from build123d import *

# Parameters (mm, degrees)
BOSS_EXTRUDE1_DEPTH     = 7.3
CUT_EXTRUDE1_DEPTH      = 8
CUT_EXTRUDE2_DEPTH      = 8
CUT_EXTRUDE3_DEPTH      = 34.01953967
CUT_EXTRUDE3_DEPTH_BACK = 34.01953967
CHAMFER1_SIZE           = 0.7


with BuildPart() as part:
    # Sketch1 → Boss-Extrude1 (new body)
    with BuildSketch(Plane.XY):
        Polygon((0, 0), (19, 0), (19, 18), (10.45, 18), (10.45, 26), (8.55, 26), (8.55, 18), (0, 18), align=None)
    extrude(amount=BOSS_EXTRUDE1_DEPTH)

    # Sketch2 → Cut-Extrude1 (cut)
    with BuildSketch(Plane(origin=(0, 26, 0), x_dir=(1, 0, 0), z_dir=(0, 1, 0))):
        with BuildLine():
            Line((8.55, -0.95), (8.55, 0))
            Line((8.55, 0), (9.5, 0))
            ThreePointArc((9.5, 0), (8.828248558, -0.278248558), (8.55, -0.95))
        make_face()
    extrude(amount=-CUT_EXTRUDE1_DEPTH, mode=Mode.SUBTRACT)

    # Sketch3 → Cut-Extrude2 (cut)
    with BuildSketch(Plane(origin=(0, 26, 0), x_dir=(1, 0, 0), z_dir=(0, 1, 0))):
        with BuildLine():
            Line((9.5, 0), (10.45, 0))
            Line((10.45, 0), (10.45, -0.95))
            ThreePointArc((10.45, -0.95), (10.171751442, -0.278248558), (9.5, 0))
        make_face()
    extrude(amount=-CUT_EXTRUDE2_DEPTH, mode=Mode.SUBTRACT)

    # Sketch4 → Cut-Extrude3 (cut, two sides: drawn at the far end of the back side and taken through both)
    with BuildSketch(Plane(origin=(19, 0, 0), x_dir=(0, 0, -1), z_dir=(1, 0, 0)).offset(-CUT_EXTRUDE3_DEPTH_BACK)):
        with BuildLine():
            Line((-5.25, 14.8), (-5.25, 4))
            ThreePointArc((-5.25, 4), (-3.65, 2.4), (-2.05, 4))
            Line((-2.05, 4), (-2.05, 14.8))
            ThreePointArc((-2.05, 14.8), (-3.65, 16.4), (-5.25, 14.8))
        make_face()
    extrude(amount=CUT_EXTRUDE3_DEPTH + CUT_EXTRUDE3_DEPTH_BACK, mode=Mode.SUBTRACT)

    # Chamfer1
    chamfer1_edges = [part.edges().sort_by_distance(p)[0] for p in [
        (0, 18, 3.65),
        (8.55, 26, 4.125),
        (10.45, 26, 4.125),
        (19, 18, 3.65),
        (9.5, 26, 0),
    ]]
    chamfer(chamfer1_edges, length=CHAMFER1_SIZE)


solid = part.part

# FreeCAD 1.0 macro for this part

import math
import FreeCAD as App
import Part
import Sketcher
from FreeCAD import Vector
Q = App.Units.Quantity


def edges_at(feature, points):
    """Names of the edges that pass closest to the given points."""
    edges = feature.Shape.Edges
    near = lambda p: min(range(len(edges)), key=lambda i: edges[i].distToShape(Part.Vertex(*p))[0])
    return sorted({f"Edge{near(p) + 1}" for p in points})

doc = App.newDocument("Part")
params = doc.addObject("Spreadsheet::Sheet", "Params")
for row, (alias, value) in enumerate([
    ("sketch1_width", "19 mm"),
    ("sketch1_height", "18 mm"),
    ("sketch1_height2", "8 mm"),
    ("sketch1_width2", "1.9 mm"),
    ("pad1_length", "7.3 mm"),
    ("sketch2_radius", "0.95 mm"),
    ("pocket1_length", "8 mm"),
    ("sketch3_radius", "0.95 mm"),
    ("pocket2_length", "8 mm"),
    ("sketch4_radius", "1.6 mm"),
    ("sketch4_width", "10.8 mm"),
    ("chamfer_size", "0.7 mm"),
], start=1):
    params.set(f"A{row}", alias)
    params.set(f"B{row}", "=" + value)
    params.setAlias(f"B{row}", alias)

body = doc.addObject("PartDesign::Body", "Body")

# Sketch on XY plane
sketch1 = body.newObject("Sketcher::SketchObject", "Sketch")
sketch1.AttachmentSupport = (doc.getObject("XY_Plane"), [""])
sketch1.MapMode = "FlatFace"
sketch1.addGeometry([
    Part.LineSegment(Vector(0, 0, 0), Vector(19, 0, 0)),  # 0
    Part.LineSegment(Vector(19, 0, 0), Vector(19, 18, 0)),  # 1
    Part.LineSegment(Vector(19, 18, 0), Vector(10.4, 18, 0)),  # 2
    Part.LineSegment(Vector(10.4, 18, 0), Vector(10.4, 26, 0)),  # 3
    Part.LineSegment(Vector(10.4, 26, 0), Vector(8.6, 26, 0)),  # 4
    Part.LineSegment(Vector(8.6, 26, 0), Vector(8.6, 18, 0)),  # 5
    Part.LineSegment(Vector(8.6, 18, 0), Vector(0, 18, 0)),  # 6
    Part.LineSegment(Vector(0, 18, 0), Vector(0, 0, 0)),  # 7
], False)
sketch1.addConstraint([
    Sketcher.Constraint("Coincident", 0, 2, 1, 1),
    Sketcher.Constraint("Coincident", 1, 2, 2, 1),
    Sketcher.Constraint("Coincident", 2, 2, 3, 1),
    Sketcher.Constraint("Coincident", 3, 2, 4, 1),
    Sketcher.Constraint("Coincident", 4, 2, 5, 1),
    Sketcher.Constraint("Coincident", 5, 2, 6, 1),
    Sketcher.Constraint("Coincident", 6, 2, 7, 1),
    Sketcher.Constraint("Coincident", 7, 2, 0, 1),
    Sketcher.Constraint("Horizontal", 0),
    Sketcher.Constraint("Vertical", 1),
    Sketcher.Constraint("Horizontal", 2),
    Sketcher.Constraint("Vertical", 3),
    Sketcher.Constraint("Horizontal", 4),
    Sketcher.Constraint("Vertical", 5),
    Sketcher.Constraint("Horizontal", 6),
    Sketcher.Constraint("Vertical", 7),
    Sketcher.Constraint("Coincident", 7, 2, -1, 1),
    Sketcher.Constraint("Horizontal", 2, 2, 5, 2),
    Sketcher.Constraint("Equal", 2, 6),
    Sketcher.Constraint("DistanceX", 0, 1, 0, 2, Q("19 mm")),
    Sketcher.Constraint("DistanceY", 1, 1, 1, 2, Q("18 mm")),
    Sketcher.Constraint("DistanceY", 3, 1, 3, 2, Q("8 mm")),
    Sketcher.Constraint("DistanceX", 4, 2, 4, 1, Q("1.9 mm")),
])
sketch1.setExpression("Constraints[19]", "Params.sketch1_width")
sketch1.setExpression("Constraints[20]", "Params.sketch1_height")
sketch1.setExpression("Constraints[21]", "Params.sketch1_height2")
sketch1.setExpression("Constraints[22]", "Params.sketch1_width2")
pad1 = body.newObject("PartDesign::Pad", "Pad")
pad1.Profile = sketch1
pad1.setExpression("Length", "Params.pad1_length")

# Sketch on XZ plane
sketch2 = body.newObject("Sketcher::SketchObject", "Sketch001")
sketch2.AttachmentSupport = (doc.getObject("XZ_Plane"), [""])
sketch2.MapMode = "FlatFace"
sketch2.AttachmentOffset = App.Placement(Vector(0, 0, -26), App.Rotation())
sketch2.addGeometry([
    Part.LineSegment(Vector(8.6, 0, 0), Vector(8.6, 0.9, 0)),
    Part.ArcOfCircle(Part.Circle(Vector(9.5, 0.9, 0), Vector(0, 0, 1), 0.9), math.radians(180), math.radians(270)),
    Part.LineSegment(Vector(9.5, 0, 0), Vector(8.6, 0, 0)),
], False)
sketch2.addConstraint([
    Sketcher.Constraint("Tangent", 0, 2, 1, 1),
    Sketcher.Constraint("Tangent", 1, 2, 2, 1),
    Sketcher.Constraint("Coincident", 2, 2, 0, 1),
    Sketcher.Constraint("Vertical", 0),
    Sketcher.Constraint("Horizontal", 2),
    Sketcher.Constraint("PointOnObject", 1, 2, -1),
    Sketcher.Constraint("Radius", 1, Q("0.95 mm")),
    Sketcher.Constraint("DistanceX", -1, 1, 1, 3, Q("9.5 mm")),
])
sketch2.setExpression("Constraints[6]", "Params.sketch2_radius")
pocket1 = body.newObject("PartDesign::Pocket", "Pocket")
pocket1.Profile = sketch2
pocket1.setExpression("Length", "Params.pocket1_length")
pocket1.Reversed = True

# Sketch on XZ plane
sketch3 = body.newObject("Sketcher::SketchObject", "Sketch002")
sketch3.AttachmentSupport = (doc.getObject("XZ_Plane"), [""])
sketch3.MapMode = "FlatFace"
sketch3.AttachmentOffset = App.Placement(Vector(0, 0, -26), App.Rotation())
sketch3.addGeometry([
    Part.LineSegment(Vector(10.4, 0, 0), Vector(9.5, 0, 0)),
    Part.ArcOfCircle(Part.Circle(Vector(9.5, 0.9, 0), Vector(0, 0, 1), 0.9), math.radians(-90), math.radians(0)),
    Part.LineSegment(Vector(10.4, 0.9, 0), Vector(10.4, 0, 0)),
], False)
sketch3.addConstraint([
    Sketcher.Constraint("Tangent", 0, 2, 1, 1),
    Sketcher.Constraint("Tangent", 1, 2, 2, 1),
    Sketcher.Constraint("Coincident", 2, 2, 0, 1),
    Sketcher.Constraint("Horizontal", 0),
    Sketcher.Constraint("Vertical", 2),
    Sketcher.Constraint("PointOnObject", 0, 2, -1),
    Sketcher.Constraint("Radius", 1, Q("0.95 mm")),
    Sketcher.Constraint("DistanceX", -1, 1, 1, 3, Q("9.5 mm")),
])
sketch3.setExpression("Constraints[6]", "Params.sketch3_radius")
pocket2 = body.newObject("PartDesign::Pocket", "Pocket001")
pocket2.Profile = sketch3
pocket2.setExpression("Length", "Params.pocket2_length")
pocket2.Reversed = True

# Sketch on YZ plane
sketch4 = body.newObject("Sketcher::SketchObject", "Sketch003")
sketch4.AttachmentSupport = (doc.getObject("YZ_Plane"), [""])
sketch4.MapMode = "FlatFace"
sketch4.AttachmentOffset = App.Placement(Vector(0, 0, 19), App.Rotation())
sketch4.addGeometry([
    Part.LineSegment(Vector(14.8, 5.2, 0), Vector(4, 5.2, 0)),
    Part.ArcOfCircle(Part.Circle(Vector(4, 3.6, 0), Vector(0, 0, 1), 1.6), math.radians(90), math.radians(270)),
    Part.LineSegment(Vector(4, 2, 0), Vector(14.8, 2, 0)),
    Part.ArcOfCircle(Part.Circle(Vector(14.8, 3.6, 0), Vector(0, 0, 1), 1.6), math.radians(-90), math.radians(90)),
], False)
sketch4.addConstraint([
    Sketcher.Constraint("Tangent", 0, 2, 1, 1),
    Sketcher.Constraint("Tangent", 1, 2, 2, 1),
    Sketcher.Constraint("Tangent", 2, 2, 3, 1),
    Sketcher.Constraint("Tangent", 3, 2, 0, 1),
    Sketcher.Constraint("Horizontal", 0),
    Sketcher.Constraint("Horizontal", 2),
    Sketcher.Constraint("Radius", 1, Q("1.6 mm")),
    Sketcher.Constraint("DistanceX", 0, 2, 0, 1, Q("10.8 mm")),
    Sketcher.Constraint("DistanceX", -1, 1, 1, 3, Q("4 mm")),
    Sketcher.Constraint("DistanceY", -1, 1, 1, 3, Q("3.65 mm")),
])
sketch4.setExpression("Constraints[6]", "Params.sketch4_radius")
sketch4.setExpression("Constraints[7]", "Params.sketch4_width")
pocket3 = body.newObject("PartDesign::Pocket", "Pocket002")
pocket3.Profile = sketch4
pocket3.Type = "ThroughAll"
pocket3.Midplane = True
doc.recompute()

chamfer = body.newObject("PartDesign::Chamfer", "Chamfer")
chamfer.Base = (pocket3, edges_at(pocket3, [
    (0, 18, 3.65),
    (8.55, 26, 4.125),
    (10.45, 26, 4.125),
    (19, 18, 3.65),
    (8.828, 26, 0.278),
]))
chamfer.setExpression("Size", "Params.chamfer_size")

doc.recompute()
